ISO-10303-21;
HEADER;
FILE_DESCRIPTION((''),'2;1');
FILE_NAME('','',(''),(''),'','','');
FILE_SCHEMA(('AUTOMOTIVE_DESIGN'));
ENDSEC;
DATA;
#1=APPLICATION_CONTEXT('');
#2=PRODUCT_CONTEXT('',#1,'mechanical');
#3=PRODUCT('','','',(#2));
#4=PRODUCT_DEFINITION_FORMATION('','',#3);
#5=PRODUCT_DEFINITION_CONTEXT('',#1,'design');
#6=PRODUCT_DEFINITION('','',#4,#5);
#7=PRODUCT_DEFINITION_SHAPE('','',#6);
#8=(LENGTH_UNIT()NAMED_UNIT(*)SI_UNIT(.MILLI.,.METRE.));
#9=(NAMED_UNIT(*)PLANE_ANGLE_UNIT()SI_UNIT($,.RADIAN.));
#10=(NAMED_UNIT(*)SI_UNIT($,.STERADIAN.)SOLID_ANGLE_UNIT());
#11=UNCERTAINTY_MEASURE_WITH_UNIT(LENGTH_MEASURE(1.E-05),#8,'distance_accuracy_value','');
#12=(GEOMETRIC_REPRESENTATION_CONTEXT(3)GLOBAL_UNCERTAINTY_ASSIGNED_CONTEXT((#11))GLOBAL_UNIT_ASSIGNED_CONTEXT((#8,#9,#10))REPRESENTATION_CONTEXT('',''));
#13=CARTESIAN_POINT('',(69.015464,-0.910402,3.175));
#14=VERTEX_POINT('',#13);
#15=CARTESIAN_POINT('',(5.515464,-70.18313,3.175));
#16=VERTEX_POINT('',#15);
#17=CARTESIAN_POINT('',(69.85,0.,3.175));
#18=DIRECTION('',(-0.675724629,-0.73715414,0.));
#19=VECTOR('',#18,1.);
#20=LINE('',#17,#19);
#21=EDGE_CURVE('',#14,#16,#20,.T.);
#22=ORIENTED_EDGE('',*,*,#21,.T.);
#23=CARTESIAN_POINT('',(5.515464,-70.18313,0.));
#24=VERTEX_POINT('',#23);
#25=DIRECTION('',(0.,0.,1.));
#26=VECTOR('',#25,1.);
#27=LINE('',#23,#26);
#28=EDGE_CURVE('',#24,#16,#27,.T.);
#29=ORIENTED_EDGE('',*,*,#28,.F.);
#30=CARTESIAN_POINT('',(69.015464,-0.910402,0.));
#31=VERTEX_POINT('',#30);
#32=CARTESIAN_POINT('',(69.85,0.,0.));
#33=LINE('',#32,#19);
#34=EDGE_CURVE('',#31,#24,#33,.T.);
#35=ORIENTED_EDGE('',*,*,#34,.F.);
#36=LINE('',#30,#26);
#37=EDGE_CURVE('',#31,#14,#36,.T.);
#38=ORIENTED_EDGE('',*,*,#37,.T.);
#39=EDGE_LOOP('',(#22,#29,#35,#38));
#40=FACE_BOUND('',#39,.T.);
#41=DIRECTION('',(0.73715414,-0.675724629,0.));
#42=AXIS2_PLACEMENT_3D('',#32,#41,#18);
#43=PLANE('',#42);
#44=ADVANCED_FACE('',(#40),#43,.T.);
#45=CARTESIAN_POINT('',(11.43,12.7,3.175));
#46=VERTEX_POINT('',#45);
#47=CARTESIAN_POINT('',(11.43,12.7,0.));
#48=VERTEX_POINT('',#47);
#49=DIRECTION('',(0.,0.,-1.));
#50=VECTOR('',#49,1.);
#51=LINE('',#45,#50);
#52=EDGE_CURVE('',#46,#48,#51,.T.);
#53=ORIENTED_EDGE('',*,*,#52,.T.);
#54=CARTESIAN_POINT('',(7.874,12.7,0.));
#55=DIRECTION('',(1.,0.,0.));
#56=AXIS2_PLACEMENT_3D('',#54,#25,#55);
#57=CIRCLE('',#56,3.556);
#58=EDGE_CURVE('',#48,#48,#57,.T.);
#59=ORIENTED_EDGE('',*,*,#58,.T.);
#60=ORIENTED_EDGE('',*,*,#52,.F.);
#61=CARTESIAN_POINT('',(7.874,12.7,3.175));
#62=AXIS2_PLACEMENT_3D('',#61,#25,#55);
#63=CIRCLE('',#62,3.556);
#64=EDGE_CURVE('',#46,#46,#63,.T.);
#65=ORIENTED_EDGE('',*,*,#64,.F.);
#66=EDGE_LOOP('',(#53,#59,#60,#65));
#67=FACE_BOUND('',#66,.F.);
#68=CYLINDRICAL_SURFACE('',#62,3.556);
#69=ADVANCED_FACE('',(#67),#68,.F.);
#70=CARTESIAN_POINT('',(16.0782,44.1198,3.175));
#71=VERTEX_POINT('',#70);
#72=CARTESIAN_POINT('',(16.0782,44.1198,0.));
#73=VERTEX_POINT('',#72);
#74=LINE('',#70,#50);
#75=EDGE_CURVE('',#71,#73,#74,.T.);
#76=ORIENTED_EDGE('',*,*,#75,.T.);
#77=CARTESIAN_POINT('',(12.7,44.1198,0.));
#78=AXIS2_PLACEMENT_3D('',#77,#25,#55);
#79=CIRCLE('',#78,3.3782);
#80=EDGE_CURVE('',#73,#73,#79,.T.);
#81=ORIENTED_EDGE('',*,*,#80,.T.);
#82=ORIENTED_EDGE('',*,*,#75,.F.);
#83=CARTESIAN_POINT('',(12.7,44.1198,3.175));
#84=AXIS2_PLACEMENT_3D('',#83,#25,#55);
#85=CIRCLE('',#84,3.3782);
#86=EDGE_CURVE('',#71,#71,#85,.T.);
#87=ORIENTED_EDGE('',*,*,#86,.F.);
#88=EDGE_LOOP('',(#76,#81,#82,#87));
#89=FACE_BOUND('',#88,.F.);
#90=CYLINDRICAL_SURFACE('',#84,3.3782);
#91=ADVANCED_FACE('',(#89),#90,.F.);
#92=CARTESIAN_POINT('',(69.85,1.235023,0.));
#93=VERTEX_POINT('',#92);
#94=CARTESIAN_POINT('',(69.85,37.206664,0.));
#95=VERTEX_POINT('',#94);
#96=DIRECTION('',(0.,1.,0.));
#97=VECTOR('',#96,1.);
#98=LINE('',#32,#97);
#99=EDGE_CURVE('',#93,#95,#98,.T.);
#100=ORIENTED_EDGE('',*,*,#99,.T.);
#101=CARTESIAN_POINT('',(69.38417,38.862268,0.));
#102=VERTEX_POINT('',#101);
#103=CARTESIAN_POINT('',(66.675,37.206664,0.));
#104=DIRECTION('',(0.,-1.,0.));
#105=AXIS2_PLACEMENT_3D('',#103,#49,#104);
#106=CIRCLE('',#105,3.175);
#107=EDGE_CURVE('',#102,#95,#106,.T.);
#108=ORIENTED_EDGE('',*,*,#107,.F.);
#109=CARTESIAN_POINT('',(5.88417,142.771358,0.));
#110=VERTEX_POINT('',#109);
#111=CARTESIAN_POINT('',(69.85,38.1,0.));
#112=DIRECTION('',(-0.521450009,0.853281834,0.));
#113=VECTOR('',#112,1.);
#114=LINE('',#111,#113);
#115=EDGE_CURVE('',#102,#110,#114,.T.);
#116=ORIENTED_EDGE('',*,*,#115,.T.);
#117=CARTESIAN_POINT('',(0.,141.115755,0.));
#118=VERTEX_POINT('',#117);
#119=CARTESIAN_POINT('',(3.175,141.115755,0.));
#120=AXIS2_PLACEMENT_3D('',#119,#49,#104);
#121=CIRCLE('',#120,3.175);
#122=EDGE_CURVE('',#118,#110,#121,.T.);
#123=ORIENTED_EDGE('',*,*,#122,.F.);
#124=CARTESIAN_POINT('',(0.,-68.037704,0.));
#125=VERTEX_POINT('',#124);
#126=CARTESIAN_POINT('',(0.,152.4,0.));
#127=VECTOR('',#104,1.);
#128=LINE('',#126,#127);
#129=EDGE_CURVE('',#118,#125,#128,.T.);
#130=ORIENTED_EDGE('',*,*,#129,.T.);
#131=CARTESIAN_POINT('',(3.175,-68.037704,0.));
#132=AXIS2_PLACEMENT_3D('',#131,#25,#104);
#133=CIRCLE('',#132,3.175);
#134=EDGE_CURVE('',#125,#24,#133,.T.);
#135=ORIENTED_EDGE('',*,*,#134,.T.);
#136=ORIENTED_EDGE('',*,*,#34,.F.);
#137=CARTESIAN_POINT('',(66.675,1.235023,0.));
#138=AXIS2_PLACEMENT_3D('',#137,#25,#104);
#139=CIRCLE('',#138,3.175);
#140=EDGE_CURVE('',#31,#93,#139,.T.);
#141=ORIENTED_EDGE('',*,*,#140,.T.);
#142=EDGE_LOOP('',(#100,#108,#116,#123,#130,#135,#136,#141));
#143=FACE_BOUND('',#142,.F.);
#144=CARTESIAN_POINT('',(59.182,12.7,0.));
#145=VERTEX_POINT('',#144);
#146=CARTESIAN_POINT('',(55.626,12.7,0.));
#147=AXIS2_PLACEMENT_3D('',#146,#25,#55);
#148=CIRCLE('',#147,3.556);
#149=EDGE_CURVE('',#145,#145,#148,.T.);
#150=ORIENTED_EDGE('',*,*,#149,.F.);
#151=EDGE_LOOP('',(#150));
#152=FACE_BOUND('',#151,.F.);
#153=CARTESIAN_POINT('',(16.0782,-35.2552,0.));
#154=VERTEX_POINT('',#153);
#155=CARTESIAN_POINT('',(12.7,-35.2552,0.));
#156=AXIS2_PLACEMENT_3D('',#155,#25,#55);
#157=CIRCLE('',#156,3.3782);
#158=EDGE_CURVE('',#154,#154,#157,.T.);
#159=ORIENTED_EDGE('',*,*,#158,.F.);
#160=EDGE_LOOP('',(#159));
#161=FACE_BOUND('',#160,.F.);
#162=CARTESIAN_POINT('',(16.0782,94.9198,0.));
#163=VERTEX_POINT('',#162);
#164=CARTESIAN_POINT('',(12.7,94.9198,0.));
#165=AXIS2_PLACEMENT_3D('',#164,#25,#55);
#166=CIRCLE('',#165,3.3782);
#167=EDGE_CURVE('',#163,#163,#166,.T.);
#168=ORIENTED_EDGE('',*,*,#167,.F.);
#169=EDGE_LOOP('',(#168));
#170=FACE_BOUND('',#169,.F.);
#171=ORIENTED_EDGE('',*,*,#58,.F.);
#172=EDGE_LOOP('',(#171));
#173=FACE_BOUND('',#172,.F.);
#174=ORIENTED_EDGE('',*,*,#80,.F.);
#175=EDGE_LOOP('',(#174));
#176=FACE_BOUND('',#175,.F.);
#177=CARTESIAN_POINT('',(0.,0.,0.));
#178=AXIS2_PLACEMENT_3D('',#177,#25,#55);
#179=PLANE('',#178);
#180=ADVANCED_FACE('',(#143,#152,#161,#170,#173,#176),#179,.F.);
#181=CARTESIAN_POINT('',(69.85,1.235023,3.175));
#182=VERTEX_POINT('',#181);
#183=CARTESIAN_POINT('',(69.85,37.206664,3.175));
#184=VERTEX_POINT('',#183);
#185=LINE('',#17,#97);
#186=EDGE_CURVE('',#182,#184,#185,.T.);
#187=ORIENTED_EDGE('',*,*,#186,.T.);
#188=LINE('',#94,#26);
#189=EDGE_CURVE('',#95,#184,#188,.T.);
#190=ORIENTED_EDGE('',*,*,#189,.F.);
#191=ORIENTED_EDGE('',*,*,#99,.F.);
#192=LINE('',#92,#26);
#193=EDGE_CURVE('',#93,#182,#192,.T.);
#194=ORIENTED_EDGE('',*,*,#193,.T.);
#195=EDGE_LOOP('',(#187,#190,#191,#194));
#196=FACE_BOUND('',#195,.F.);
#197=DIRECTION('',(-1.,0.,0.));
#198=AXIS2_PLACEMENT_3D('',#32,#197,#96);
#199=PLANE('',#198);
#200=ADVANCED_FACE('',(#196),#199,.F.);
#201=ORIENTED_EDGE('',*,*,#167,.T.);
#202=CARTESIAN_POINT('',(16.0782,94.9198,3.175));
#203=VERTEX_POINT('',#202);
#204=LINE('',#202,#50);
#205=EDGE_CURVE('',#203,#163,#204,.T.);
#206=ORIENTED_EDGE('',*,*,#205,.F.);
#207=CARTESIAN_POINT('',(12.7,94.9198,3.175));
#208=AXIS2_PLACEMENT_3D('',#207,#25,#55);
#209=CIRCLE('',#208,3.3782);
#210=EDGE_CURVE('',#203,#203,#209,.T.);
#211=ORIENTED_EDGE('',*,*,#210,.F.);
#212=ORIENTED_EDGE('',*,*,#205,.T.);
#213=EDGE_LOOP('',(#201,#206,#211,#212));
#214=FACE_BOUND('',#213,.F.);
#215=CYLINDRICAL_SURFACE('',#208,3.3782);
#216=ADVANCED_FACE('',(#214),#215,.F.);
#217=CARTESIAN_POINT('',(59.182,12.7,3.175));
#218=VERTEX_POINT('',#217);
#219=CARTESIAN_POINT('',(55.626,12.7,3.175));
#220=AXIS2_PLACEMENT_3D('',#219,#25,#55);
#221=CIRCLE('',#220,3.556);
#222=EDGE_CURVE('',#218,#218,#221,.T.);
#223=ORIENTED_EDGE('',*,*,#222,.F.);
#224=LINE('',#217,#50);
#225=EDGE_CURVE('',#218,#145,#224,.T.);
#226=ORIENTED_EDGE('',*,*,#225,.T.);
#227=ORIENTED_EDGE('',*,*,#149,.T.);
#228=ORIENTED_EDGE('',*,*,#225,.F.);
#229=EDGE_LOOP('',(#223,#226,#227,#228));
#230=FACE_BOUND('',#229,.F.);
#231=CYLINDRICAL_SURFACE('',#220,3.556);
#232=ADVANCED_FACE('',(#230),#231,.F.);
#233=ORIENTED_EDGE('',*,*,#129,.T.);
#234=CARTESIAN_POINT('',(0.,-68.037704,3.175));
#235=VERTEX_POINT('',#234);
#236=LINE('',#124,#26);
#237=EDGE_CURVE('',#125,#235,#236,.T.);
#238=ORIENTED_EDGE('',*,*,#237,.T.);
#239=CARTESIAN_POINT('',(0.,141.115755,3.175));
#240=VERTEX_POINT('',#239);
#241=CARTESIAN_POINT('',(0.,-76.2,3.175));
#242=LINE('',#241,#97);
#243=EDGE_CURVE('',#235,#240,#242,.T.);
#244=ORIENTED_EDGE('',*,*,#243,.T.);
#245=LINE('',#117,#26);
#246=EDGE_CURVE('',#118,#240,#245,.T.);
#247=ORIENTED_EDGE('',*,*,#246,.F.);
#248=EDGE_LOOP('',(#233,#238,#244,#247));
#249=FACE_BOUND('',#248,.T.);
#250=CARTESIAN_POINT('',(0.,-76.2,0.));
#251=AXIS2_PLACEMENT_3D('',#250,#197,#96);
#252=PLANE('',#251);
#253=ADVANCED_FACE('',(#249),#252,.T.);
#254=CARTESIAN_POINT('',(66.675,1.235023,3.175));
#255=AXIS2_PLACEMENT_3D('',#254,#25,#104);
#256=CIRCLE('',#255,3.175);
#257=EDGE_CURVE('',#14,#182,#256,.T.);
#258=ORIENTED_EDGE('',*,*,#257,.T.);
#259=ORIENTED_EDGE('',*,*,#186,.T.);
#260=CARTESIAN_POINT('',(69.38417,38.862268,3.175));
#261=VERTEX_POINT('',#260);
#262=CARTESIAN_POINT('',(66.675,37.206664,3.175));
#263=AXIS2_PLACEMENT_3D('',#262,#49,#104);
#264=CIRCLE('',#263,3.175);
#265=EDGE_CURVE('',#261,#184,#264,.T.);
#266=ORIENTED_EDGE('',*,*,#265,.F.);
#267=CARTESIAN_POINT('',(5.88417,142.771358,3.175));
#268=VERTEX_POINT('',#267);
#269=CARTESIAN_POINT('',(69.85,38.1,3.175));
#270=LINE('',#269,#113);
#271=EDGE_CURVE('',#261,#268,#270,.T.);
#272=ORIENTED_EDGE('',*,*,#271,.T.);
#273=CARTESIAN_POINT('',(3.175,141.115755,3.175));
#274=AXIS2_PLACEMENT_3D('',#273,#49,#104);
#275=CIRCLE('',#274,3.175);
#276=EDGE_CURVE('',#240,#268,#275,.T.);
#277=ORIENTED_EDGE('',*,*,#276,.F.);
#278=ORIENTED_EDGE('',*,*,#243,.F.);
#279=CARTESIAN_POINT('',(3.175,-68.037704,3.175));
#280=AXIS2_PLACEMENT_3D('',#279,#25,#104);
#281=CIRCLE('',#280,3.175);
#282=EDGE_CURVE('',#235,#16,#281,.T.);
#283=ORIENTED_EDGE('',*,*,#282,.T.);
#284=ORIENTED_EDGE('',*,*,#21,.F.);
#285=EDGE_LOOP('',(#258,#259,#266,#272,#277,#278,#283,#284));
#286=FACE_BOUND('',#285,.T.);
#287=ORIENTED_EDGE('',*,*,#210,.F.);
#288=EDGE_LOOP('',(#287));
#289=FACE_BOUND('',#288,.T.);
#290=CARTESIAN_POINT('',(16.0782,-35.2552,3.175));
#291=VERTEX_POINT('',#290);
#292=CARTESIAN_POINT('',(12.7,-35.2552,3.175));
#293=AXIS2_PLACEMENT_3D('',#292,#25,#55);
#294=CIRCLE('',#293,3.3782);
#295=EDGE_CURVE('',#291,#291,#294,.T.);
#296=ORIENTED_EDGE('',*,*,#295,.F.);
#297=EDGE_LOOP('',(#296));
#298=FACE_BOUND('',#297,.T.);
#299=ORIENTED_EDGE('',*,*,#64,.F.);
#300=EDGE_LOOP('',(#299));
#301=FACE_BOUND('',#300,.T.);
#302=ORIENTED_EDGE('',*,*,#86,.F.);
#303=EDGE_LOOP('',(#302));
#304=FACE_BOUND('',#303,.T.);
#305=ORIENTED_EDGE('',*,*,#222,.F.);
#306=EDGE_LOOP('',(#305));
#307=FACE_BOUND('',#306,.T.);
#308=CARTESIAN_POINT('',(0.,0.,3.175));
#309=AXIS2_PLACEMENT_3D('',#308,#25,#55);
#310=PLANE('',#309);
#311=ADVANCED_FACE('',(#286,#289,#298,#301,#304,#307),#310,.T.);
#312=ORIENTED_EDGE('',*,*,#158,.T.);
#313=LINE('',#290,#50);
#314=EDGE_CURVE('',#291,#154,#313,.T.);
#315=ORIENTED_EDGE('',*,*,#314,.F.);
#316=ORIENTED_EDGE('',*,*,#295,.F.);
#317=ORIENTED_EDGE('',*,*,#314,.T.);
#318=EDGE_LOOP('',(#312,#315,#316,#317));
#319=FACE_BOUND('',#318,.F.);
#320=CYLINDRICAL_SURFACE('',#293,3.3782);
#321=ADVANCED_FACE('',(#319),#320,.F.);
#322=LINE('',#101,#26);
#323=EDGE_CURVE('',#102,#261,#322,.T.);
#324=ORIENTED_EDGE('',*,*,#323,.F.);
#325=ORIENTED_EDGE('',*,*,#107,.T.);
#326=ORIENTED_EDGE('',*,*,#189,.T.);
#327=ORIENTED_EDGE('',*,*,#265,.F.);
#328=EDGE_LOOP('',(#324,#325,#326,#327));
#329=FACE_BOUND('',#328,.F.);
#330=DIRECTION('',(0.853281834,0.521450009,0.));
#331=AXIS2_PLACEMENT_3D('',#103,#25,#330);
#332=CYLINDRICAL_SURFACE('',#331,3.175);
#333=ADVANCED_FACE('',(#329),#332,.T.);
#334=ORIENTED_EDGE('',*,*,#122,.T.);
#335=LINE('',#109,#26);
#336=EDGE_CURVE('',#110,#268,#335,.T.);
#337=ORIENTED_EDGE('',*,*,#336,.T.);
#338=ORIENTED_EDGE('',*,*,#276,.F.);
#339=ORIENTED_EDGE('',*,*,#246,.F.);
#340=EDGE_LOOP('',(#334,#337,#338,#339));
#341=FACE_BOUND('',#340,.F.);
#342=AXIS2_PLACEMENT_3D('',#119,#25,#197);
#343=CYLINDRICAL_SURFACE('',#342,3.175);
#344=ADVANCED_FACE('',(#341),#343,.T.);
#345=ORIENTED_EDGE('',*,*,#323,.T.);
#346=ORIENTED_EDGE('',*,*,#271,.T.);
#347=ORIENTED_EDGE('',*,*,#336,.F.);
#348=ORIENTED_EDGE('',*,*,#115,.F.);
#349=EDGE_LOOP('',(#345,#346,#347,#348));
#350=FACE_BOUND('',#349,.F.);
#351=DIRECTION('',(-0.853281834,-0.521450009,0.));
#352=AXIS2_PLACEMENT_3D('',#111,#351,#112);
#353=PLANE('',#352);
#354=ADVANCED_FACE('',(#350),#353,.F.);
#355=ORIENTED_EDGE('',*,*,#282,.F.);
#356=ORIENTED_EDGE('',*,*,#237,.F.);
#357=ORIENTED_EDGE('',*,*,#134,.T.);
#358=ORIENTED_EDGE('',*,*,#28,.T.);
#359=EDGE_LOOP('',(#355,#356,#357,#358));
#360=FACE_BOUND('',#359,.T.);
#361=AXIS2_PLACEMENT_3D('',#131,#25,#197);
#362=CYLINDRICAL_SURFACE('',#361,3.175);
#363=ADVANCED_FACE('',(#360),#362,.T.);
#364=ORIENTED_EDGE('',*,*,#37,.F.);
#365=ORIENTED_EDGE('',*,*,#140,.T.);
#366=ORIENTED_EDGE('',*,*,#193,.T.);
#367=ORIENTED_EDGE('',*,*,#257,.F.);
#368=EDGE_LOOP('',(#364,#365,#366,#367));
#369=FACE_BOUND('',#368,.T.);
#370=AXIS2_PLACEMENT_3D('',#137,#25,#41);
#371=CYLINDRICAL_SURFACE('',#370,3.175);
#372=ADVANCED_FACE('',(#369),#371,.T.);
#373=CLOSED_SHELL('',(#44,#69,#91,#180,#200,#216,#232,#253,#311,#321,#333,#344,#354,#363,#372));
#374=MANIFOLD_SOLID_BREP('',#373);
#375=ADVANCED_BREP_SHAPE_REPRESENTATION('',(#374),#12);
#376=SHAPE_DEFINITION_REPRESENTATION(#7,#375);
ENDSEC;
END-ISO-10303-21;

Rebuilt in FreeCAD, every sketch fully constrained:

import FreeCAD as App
import Part
import Sketcher
Q = App.Units.Quantity


def edges_at(feature, points):
    """Names of the edges that pass closest to the given points."""
    edges = feature.Shape.Edges
    near = lambda p: min(range(len(edges)), key=lambda i: edges[i].distToShape(Part.Vertex(*p))[0])
    return sorted({f"Edge{near(p) + 1}" for p in points})


def add_polygon(sketch, points):
    """Adds a closed chain of lines whose ends are joined by coincident constraints."""
    first, n = sketch.GeometryCount, len(points)
    for a, b in zip(points, points[1:] + points[:1]):
        sketch.addGeometry(Part.LineSegment(App.Vector(*a, 0), App.Vector(*b, 0)), False)
    for i in range(n):
        sketch.addConstraint(Sketcher.Constraint("Coincident", first + i, 2, first + (i + 1) % n, 1))

doc = App.newDocument("Part")
body = doc.addObject("PartDesign::Body", "Body")

sketch1 = body.newObject("Sketcher::SketchObject", "Sketch")
sketch1.AttachmentSupport = (doc.getObject("XY_Plane"), [""])
sketch1.MapMode = "FlatFace"
add_polygon(sketch1, [(0, -76), (70, 0), (70, 38), (0, 152)])
sketch1.addConstraint([
    Sketcher.Constraint("Vertical", 1),
    Sketcher.Constraint("Vertical", 3),
    Sketcher.Constraint("PointOnObject", 0, 2, -1),
    Sketcher.Constraint("PointOnObject", 2, 2, -2),
    Sketcher.Constraint("DistanceY", 1, 1, 1, 2, Q("1.5 in")),
    Sketcher.Constraint("DistanceY", -1, 1, 2, 2, Q("6 in")),
    Sketcher.Constraint("DistanceY", 3, 2, -1, 1, Q("3 in")),
    Sketcher.Constraint("DistanceX", -1, 1, 0, 2, Q("2.75 in")),
])
pad1 = body.newObject("PartDesign::Pad", "Pad")
pad1.Profile = sketch1
pad1.Length = Q("0.125 in")

sketch2 = body.newObject("Sketcher::SketchObject", "Sketch001")
sketch2.AttachmentSupport = (doc.getObject("XY_Plane"), [""])
sketch2.MapMode = "FlatFace"
sketch2.AttachmentOffset = App.Placement(App.Vector(0, 0, 0.125 * 25.4), App.Rotation())
sketch2.addGeometry([
    Part.Circle(App.Vector(7.9, 12.7, 0), App.Vector(0, 0, 1), 3.6),
    Part.Circle(App.Vector(55.6, 12.7, 0), App.Vector(0, 0, 1), 3.6),
], False)
sketch2.addConstraint([
    Sketcher.Constraint("Equal", 0, 1),
    Sketcher.Constraint("Horizontal", 0, 3, 1, 3),
    Sketcher.Constraint("Diameter", 0, Q("0.28 in")),
    Sketcher.Constraint("DistanceY", -1, 1, 0, 3, Q("0.5 in")),
    Sketcher.Constraint("DistanceX", -1, 1, 0, 3, Q("0.31 in")),
    Sketcher.Constraint("DistanceX", -1, 1, 1, 3, Q("2.19 in")),
])
pocket1 = body.newObject("PartDesign::Pocket", "Pocket")
pocket1.Profile = sketch2
pocket1.Length = Q("1 in")
doc.recompute()

fillet = body.newObject("PartDesign::Fillet", "Fillet")
fillet.Base = (pocket1, edges_at(pocket1, [(0, 152.4, 1.587)]))
fillet.Radius = Q("0.125 in")

sketch3 = body.newObject("Sketcher::SketchObject", "Sketch002")
sketch3.AttachmentSupport = (doc.getObject("XY_Plane"), [""])
sketch3.MapMode = "FlatFace"
sketch3.AttachmentOffset = App.Placement(App.Vector(0, 0, 0.125 * 25.4), App.Rotation())
sketch3.addGeometry([
    Part.Circle(App.Vector(12.7, 94.9, 0), App.Vector(0, 0, 1), 3.4),
    Part.Circle(App.Vector(12.7, 44.1, 0), App.Vector(0, 0, 1), 3.4),
], False)
sketch3.addConstraint([
    Sketcher.Constraint("Equal", 0, 1),
    Sketcher.Constraint("Vertical", 0, 3, 1, 3),
    Sketcher.Constraint("Diameter", 0, Q("0.266 in")),
    Sketcher.Constraint("DistanceY", 1, 3, 0, 3, Q("2 in")),
    Sketcher.Constraint("DistanceX", -1, 1, 0, 3, Q("0.5 in")),
    Sketcher.Constraint("DistanceY", -1, 1, 1, 3, Q("1.737 in")),
])
pocket2 = body.newObject("PartDesign::Pocket", "Pocket001")
pocket2.Profile = sketch3
pocket2.Length = Q("1 in")
doc.recompute()

fillet2 = body.newObject("PartDesign::Fillet", "Fillet001")
fillet2.Base = (pocket2, edges_at(pocket2, [(69.85, 0, 1.587), (69.85, 38.1, 1.587)]))
fillet2.Radius = Q("0.125 in")
doc.recompute()

fillet3 = body.newObject("PartDesign::Fillet", "Fillet002")
fillet3.Base = (fillet2, edges_at(fillet2, [(0, -76.2, 1.587)]))
fillet3.Radius = Q("0.125 in")

sketch4 = body.newObject("Sketcher::SketchObject", "Sketch003")
sketch4.AttachmentSupport = (doc.getObject("XY_Plane"), [""])
sketch4.MapMode = "FlatFace"
sketch4.AttachmentOffset = App.Placement(App.Vector(0, 0, 0.125 * 25.4), App.Rotation())
sketch4.addGeometry(Part.Circle(App.Vector(12.7, -35.3, 0), App.Vector(0, 0, 1), 3.4), False)
sketch4.addConstraint([
    Sketcher.Constraint("Diameter", 0, Q("0.266 in")),
    Sketcher.Constraint("DistanceX", -1, 1, 0, 3, Q("0.5 in")),
    Sketcher.Constraint("DistanceY", 0, 3, -1, 1, Q("1.388 in")),
])
pocket3 = body.newObject("PartDesign::Pocket", "Pocket002")
pocket3.Profile = sketch4
pocket3.Length = Q("1 in")

sketch5 = body.newObject("Sketcher::SketchObject", "Sketch004")
sketch5.AttachmentSupport = (doc.getObject("XY_Plane"), [""])
sketch5.MapMode = "FlatFace"
sketch5.AttachmentOffset = App.Placement(App.Vector(0, 0, 0.125 * 25.4), App.Rotation())
sketch5.addGeometry([
    Part.Circle(App.Vector(12.7, 44.1, 0), App.Vector(0, 0, 1), 3.4),
    Part.Circle(App.Vector(12.7, 94.9, 0), App.Vector(0, 0, 1), 3.4),
], False)
sketch5.addConstraint([
    Sketcher.Constraint("Equal", 0, 1),
    Sketcher.Constraint("Vertical", 0, 3, 1, 3),
    Sketcher.Constraint("Diameter", 0, Q("0.266 in")),
    Sketcher.Constraint("DistanceY", 0, 3, 1, 3, Q("2 in")),
    Sketcher.Constraint("DistanceX", -1, 1, 0, 3, Q("0.5 in")),
    Sketcher.Constraint("DistanceY", -1, 1, 0, 3, Q("1.737 in")),
])
pocket4 = body.newObject("PartDesign::Pocket", "Pocket003")
pocket4.Profile = sketch5
pocket4.Length = Q("1 in")

doc.recompute()
